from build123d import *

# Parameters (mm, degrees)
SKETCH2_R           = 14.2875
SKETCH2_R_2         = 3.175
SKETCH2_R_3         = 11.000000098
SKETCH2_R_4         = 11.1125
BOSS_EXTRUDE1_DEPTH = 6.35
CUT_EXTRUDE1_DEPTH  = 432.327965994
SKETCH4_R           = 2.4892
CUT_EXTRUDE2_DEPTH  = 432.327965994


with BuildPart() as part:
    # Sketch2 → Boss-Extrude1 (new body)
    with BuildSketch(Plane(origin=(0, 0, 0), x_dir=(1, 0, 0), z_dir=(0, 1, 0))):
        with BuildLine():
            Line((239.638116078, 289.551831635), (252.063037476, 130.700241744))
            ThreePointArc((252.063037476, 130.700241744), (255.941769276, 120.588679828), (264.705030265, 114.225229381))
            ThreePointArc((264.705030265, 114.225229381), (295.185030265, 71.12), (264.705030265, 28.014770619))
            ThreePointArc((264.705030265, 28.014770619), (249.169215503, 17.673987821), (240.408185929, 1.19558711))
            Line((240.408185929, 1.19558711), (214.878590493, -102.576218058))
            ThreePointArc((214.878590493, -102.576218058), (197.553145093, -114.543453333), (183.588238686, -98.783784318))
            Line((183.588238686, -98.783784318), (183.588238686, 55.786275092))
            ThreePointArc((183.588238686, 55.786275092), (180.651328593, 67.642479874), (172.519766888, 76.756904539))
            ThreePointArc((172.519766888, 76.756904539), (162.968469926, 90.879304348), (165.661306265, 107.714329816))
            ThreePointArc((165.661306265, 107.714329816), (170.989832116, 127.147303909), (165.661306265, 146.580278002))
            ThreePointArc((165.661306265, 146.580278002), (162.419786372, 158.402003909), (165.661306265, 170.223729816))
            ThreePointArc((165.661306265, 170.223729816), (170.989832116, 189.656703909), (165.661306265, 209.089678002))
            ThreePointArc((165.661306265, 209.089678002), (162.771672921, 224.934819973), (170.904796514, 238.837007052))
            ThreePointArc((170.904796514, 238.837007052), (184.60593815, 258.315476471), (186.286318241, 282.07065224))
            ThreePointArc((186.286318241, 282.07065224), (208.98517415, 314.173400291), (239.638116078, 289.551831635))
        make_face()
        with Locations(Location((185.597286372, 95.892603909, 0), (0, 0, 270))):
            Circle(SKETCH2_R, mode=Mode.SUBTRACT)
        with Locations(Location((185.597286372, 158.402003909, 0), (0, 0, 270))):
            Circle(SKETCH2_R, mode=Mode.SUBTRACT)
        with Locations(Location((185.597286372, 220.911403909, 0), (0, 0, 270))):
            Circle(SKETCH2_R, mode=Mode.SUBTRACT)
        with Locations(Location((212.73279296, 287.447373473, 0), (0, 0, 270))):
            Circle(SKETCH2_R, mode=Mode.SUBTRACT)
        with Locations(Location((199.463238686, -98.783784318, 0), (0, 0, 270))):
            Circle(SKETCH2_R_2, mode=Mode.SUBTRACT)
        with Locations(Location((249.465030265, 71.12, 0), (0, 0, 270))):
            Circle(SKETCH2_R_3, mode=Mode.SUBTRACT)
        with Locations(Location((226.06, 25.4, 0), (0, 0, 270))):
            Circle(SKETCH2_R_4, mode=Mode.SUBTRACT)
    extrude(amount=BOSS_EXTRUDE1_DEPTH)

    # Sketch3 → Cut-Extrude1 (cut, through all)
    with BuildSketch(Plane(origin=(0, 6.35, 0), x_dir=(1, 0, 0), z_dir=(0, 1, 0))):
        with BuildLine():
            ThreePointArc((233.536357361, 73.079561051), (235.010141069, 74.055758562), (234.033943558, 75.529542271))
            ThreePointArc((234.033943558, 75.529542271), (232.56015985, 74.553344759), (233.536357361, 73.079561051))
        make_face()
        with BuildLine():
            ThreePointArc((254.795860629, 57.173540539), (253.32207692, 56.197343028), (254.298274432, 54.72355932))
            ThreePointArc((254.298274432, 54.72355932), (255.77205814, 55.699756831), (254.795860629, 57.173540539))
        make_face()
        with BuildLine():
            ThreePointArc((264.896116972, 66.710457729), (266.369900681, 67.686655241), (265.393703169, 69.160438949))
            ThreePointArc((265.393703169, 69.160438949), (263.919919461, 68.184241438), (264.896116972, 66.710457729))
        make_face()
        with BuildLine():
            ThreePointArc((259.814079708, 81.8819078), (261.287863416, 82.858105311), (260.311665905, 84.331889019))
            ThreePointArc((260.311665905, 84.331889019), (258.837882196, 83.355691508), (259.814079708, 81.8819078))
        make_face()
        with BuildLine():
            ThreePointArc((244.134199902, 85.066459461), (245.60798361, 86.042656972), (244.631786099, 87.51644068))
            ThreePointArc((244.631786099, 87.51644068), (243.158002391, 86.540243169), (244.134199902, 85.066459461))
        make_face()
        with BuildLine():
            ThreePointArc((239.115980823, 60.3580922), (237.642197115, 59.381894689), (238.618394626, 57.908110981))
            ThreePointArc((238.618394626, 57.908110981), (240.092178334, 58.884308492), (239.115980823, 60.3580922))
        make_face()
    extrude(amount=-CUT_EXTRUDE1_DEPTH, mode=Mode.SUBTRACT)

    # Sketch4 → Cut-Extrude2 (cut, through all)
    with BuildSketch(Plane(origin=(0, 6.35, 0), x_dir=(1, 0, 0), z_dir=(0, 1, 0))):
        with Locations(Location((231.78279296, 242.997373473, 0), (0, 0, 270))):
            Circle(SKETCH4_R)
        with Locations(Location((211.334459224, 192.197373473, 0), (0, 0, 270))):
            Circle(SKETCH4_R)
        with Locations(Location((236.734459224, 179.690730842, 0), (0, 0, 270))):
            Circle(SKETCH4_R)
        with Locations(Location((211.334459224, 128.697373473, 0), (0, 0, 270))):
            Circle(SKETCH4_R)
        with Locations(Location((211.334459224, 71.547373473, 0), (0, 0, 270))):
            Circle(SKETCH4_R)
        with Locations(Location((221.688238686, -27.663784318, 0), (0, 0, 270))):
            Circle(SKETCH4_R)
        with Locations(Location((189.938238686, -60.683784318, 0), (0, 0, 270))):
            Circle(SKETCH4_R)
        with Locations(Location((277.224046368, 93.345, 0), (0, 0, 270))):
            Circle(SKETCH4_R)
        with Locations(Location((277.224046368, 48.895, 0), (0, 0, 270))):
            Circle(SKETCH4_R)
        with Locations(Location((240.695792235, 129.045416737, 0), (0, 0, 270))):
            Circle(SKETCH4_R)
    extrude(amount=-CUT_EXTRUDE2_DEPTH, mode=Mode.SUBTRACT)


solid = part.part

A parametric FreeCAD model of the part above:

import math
import FreeCAD as App
import Part
import Sketcher

V = App.Vector
Q = App.Units.Quantity

doc = App.newDocument("Part")
body = doc.addObject("PartDesign::Body", "Body")

# Sketch on XZ plane
sketch1 = body.newObject("Sketcher::SketchObject", "Sketch")
sketch1.AttachmentSupport = (doc.getObject("XZ_Plane"), [""])
sketch1.MapMode = "FlatFace"
sketch1.addGeometry([
    Part.LineSegment(V(252.1, -130.7, 0), V(239.6, -289.6, 0)),  # 0
    Part.ArcOfCircle(Part.Circle(V(212.7, -287.4, 0), V(0, 0, 1), 27), math.radians(169), math.radians(356)),  # 1
    Part.ArcOfCircle(Part.Circle(V(142.7, -273.2, 0), V(0, 0, 1), 44.4), math.radians(-11), math.radians(51)),  # 2
    Part.ArcOfCircle(Part.Circle(V(185.6, -220.9, 0), V(0, 0, 1), 23.2), math.radians(149), math.radians(231)),  # 3
    Part.ArcOfCircle(Part.Circle(V(132.9, -189.7, 0), V(0, 0, 1), 38.1), math.radians(-31), math.radians(31)),  # 4
    Part.ArcOfCircle(Part.Circle(V(185.6, -158.4, 0), V(0, 0, 1), 23.2), math.radians(149), math.radians(211)),  # 5
    Part.ArcOfCircle(Part.Circle(V(132.9, -127.1, 0), V(0, 0, 1), 38.1), math.radians(-31), math.radians(31)),  # 6
    Part.ArcOfCircle(Part.Circle(V(185.6, -95.9, 0), V(0, 0, 1), 23.2), math.radians(124), math.radians(211)),  # 7
    Part.ArcOfCircle(Part.Circle(V(158.2, -55.8, 0), V(0, 0, 1), 25.4), math.radians(-56), math.radians(0)),  # 8
    Part.LineSegment(V(183.6, -55.8, 0), V(183.6, 98.8, 0)),  # 9
    Part.ArcOfCircle(Part.Circle(V(199.5, 98.8, 0), V(0, 0, 1), 15.9), math.radians(14), math.radians(180)),  # 10
    Part.LineSegment(V(214.9, 102.6, 0), V(240.4, -1.2, 0)),  # 11
    Part.ArcOfCircle(Part.Circle(V(277.4, 7.9, 0), V(0, 0, 1), 38.1), math.radians(-166), math.radians(-109)),  # 12
    Part.ArcOfCircle(Part.Circle(V(249.5, -71.1, 0), V(0, 0, 1), 45.7), math.radians(-71), math.radians(71)),  # 13
    Part.ArcOfCircle(Part.Circle(V(271.1, -132.2, 0), V(0, 0, 1), 19), math.radians(109), math.radians(176)),  # 14
    Part.Circle(V(249.5, -71.1, 0), V(0, 0, 1), 11),  # 15
    Part.Circle(V(226.1, -25.4, 0), V(0, 0, 1), 11.1),  # 16
    Part.Circle(V(199.5, 98.8, 0), V(0, 0, 1), 3.2),  # 17
    Part.Circle(V(185.6, -95.9, 0), V(0, 0, 1), 14.3),  # 18
    Part.Circle(V(185.6, -158.4, 0), V(0, 0, 1), 14.3),  # 19
    Part.Circle(V(212.7, -287.4, 0), V(0, 0, 1), 14.3),  # 20
    Part.Circle(V(185.6, -220.9, 0), V(0, 0, 1), 14.3),  # 21
], False)
sketch1.addConstraint([
    Sketcher.Constraint("Tangent", 0, 2, 1, 2),
    Sketcher.Constraint("Tangent", 1, 1, 2, 1),
    Sketcher.Constraint("Tangent", 2, 2, 3, 2),
    Sketcher.Constraint("Tangent", 3, 1, 4, 1),
    Sketcher.Constraint("Tangent", 4, 2, 5, 2),
    Sketcher.Constraint("Tangent", 5, 1, 6, 1),
    Sketcher.Constraint("Tangent", 6, 2, 7, 2),
    Sketcher.Constraint("Tangent", 7, 1, 8, 1),
    Sketcher.Constraint("Tangent", 8, 2, 9, 1),
    Sketcher.Constraint("Tangent", 9, 2, 10, 2),
    Sketcher.Constraint("Tangent", 10, 1, 11, 1),
    Sketcher.Constraint("Tangent", 11, 2, 12, 1),
    Sketcher.Constraint("Tangent", 12, 2, 13, 2),
    Sketcher.Constraint("Tangent", 13, 1, 14, 1),
    Sketcher.Constraint("Tangent", 14, 2, 0, 1),
    Sketcher.Constraint("Vertical", 9),
    Sketcher.Constraint("Coincident", 15, 3, 13, 3),
    Sketcher.Constraint("Coincident", 17, 3, 10, 3),
    Sketcher.Constraint("Coincident", 18, 3, 7, 3),
    Sketcher.Constraint("Coincident", 19, 3, 5, 3),
    Sketcher.Constraint("Coincident", 20, 3, 1, 3),
    Sketcher.Constraint("Coincident", 21, 3, 3, 3),
    Sketcher.Constraint("Equal", 3, 5),
    Sketcher.Constraint("Equal", 4, 6),
    Sketcher.Constraint("Equal", 5, 7),
    Sketcher.Constraint("Equal", 6, 12),
    Sketcher.Constraint("Equal", 18, 19),
    Sketcher.Constraint("Equal", 19, 20),
    Sketcher.Constraint("Equal", 20, 21),
    Sketcher.Constraint("Vertical", 3, 3, 5, 3),
    Sketcher.Constraint("Vertical", 4, 3, 6, 3),
    Sketcher.Constraint("Vertical", 5, 3, 7, 3),
    Sketcher.Constraint("Vertical", 12, 2, 13, 1),
    Sketcher.Constraint("Radius", 8, Q("1 in")),
    Sketcher.Constraint("Radius", 4, Q("1.5 in")),
    Sketcher.Constraint("Radius", 13, Q("1.8 in")),
    Sketcher.Constraint("Diameter", 17, Q("0.25 in")),
    Sketcher.Constraint("Radius", 2, Q("1.75 in")),
    Sketcher.Constraint("Radius", 14, Q("0.75 in")),
    Sketcher.Constraint("Diameter", 16, Q("0.875 in")),
    Sketcher.Constraint("Diameter", 18, Q("1.125 in")),
    Sketcher.Constraint("DistanceY", 16, 3, -1, 1, Q("1 in")),
    Sketcher.Constraint("Radius", 1, Q("1.0625 in")),
    Sketcher.Constraint("Radius", 10, Q("0.625 in")),
    Sketcher.Constraint("DistanceY", 13, 3, -1, 1, Q("2.8 in")),
    Sketcher.Constraint("DistanceX", -1, 1, 16, 3, Q("8.9 in")),
    Sketcher.Constraint("Radius", 3, Q("0.9125 in")),
    Sketcher.Constraint("DistanceX", 13, 3, 12, 3, Q("1.1 in")),
    Sketcher.Constraint("Diameter", 15, 22.0),
    Sketcher.Constraint("DistanceY", 3, 3, 5, 3, Q("2.461 in")),
    Sketcher.Constraint("DistanceY", 9, 1, 9, 2, 154.570059),
    Sketcher.Constraint("DistanceX", 6, 3, 12, 3, 144.515198),
    Sketcher.Constraint("DistanceX", 2, 3, 1, 1, 43.5589),
    Sketcher.Constraint("DistanceY", 7, 3, 7, 1, 19.135699),
    Sketcher.Constraint("DistanceY", 14, 3, 14, 2, 1.4855),
    Sketcher.Constraint("Distance", 0, 159.33677),
    Sketcher.Constraint("DistanceX", -1, 1, 2, 3, 142.727419),
])
pad1 = body.newObject("PartDesign::Pad", "Pad")
pad1.Profile = sketch1
pad1.Length = Q("0.25 in")
pad1.Reversed = True

# Sketch on XZ plane
sketch2 = body.newObject("Sketcher::SketchObject", "Sketch001")
sketch2.AttachmentSupport = (doc.getObject("XZ_Plane"), [""])
sketch2.MapMode = "FlatFace"
sketch2.AttachmentOffset = App.Placement(V(0, 0, -0.25 * 25.4), App.Rotation())
sketch2.addGeometry([
    Part.ArcOfCircle(Part.Circle(V(233.8, -74.3, 0), V(0, 0, 1), 1.2), math.radians(-79), math.radians(101)),  # 0
    Part.ArcOfCircle(Part.Circle(V(233.8, -74.3, 0), V(0, 0, 1), 1.2), math.radians(101), math.radians(281)),  # 1
    Part.ArcOfCircle(Part.Circle(V(254.5, -55.9, 0), V(0, 0, 1), 1.2), math.radians(101), math.radians(281)),  # 2
    Part.ArcOfCircle(Part.Circle(V(254.5, -55.9, 0), V(0, 0, 1), 1.2), math.radians(-79), math.radians(101)),  # 3
    Part.Circle(V(265.1, -67.9, 0), V(0, 0, 1), 1.2),  # 4
    Part.ArcOfCircle(Part.Circle(V(260.1, -83.1, 0), V(0, 0, 1), 1.2), math.radians(-79), math.radians(101)),  # 5
    Part.ArcOfCircle(Part.Circle(V(260.1, -83.1, 0), V(0, 0, 1), 1.2), math.radians(101), math.radians(281)),  # 6
    Part.Circle(V(244.4, -86.3, 0), V(0, 0, 1), 1.2),  # 7
    Part.Circle(V(238.9, -59.1, 0), V(0, 0, 1), 1.2),  # 8
], False)
sketch2.addConstraint([
    Sketcher.Constraint("Tangent", 0, 1, 1, 2),
    Sketcher.Constraint("Coincident", 1, 1, 0, 2),
    Sketcher.Constraint("Tangent", 2, 1, 3, 2),
    Sketcher.Constraint("Coincident", 3, 1, 2, 2),
    Sketcher.Constraint("Tangent", 5, 1, 6, 2),
    Sketcher.Constraint("Coincident", 6, 1, 5, 2),
    Sketcher.Constraint("Equal", 1, 2),
    Sketcher.Constraint("Equal", 3, 4),
    Sketcher.Constraint("Equal", 4, 5),
    Sketcher.Constraint("Equal", 6, 7),
    Sketcher.Constraint("Equal", 7, 8),
    Sketcher.Constraint("Diameter", 4, 2.5),
    Sketcher.Constraint("DistanceY", 5, 3, -1, 1, 83.106898),
    Sketcher.Constraint("DistanceY", 8, 3, -1, 1, 59.133102),
    Sketcher.Constraint("DistanceY", 1, 3, 2, 3, 18.356002),
    Sketcher.Constraint("DistanceY", 4, 3, 2, 3, 11.986898),
    Sketcher.Constraint("DistanceY", 7, 3, 1, 3, 11.986898),
    Sketcher.Constraint("DistanceY", 1, 1, 2, 1, 18.356002),
    Sketcher.Constraint("DistanceX", -1, 1, 0, 3, 233.78515),
    Sketcher.Constraint("DistanceY", 0, 3, -1, 1, 74.304552),
    Sketcher.Constraint("DistanceX", -1, 1, 4, 3, 265.14491),
    Sketcher.Constraint("DistanceY", 1, 1, -1, 1, 73.079561),
    Sketcher.Constraint("DistanceX", -1, 1, 3, 1, 254.795861),
    Sketcher.Constraint("DistanceY", 3, 1, -1, 1, 57.173541),
    Sketcher.Constraint("DistanceY", 5, 1, -1, 1, 84.331889),
    Sketcher.Constraint("DistanceX", -1, 1, 6, 1, 259.81408),
    Sketcher.Constraint("DistanceX", 7, 3, 6, 3, 15.67988),
    Sketcher.Constraint("DistanceX", 8, 3, 2, 3, 15.67988),
    Sketcher.Constraint("DistanceY", 0, 1, 1, 3, 1.224991),
    Sketcher.Constraint("DistanceX", 0, 1, 7, 3, 10.349049),
])
pocket1 = body.newObject("PartDesign::Pocket", "Pocket")
pocket1.Profile = sketch2
pocket1.Type = "ThroughAll"
pocket1.Reversed = True

# Sketch on XZ plane
sketch3 = body.newObject("Sketcher::SketchObject", "Sketch002")
sketch3.AttachmentSupport = (doc.getObject("XZ_Plane"), [""])
sketch3.MapMode = "FlatFace"
sketch3.AttachmentOffset = App.Placement(V(0, 0, -0.25 * 25.4), App.Rotation())
sketch3.addGeometry([
    Part.Circle(V(231.8, -243, 0), V(0, 0, 1), 2.5),  # 0
    Part.Circle(V(211.3, -192.2, 0), V(0, 0, 1), 2.5),  # 1
    Part.Circle(V(236.7, -179.7, 0), V(0, 0, 1), 2.5),  # 2
    Part.Circle(V(211.3, -128.7, 0), V(0, 0, 1), 2.5),  # 3
    Part.Circle(V(211.3, -71.5, 0), V(0, 0, 1), 2.5),  # 4
    Part.Circle(V(221.7, 27.7, 0), V(0, 0, 1), 2.5),  # 5
    Part.Circle(V(189.9, 60.7, 0), V(0, 0, 1), 2.5),  # 6
    Part.Circle(V(277.2, -93.3, 0), V(0, 0, 1), 2.5),  # 7
    Part.Circle(V(277.2, -48.9, 0), V(0, 0, 1), 2.5),  # 8
    Part.Circle(V(240.7, -129, 0), V(0, 0, 1), 2.5),  # 9
], False)
sketch3.addConstraint([
    Sketcher.Constraint("Equal", 0, 1),
    Sketcher.Constraint("Equal", 1, 2),
    Sketcher.Constraint("Equal", 2, 3),
    Sketcher.Constraint("Equal", 3, 4),
    Sketcher.Constraint("Equal", 4, 5),
    Sketcher.Constraint("Equal", 5, 6),
    Sketcher.Constraint("Equal", 6, 7),
    Sketcher.Constraint("Equal", 7, 8),
    Sketcher.Constraint("Equal", 8, 9),
    Sketcher.Constraint("Vertical", 1, 3, 3, 3),
    Sketcher.Constraint("Vertical", 3, 3, 4, 3),
    Sketcher.Constraint("Vertical", 7, 3, 8, 3),
    Sketcher.Constraint("Diameter", 0, Q("0.196 in")),
    Sketcher.Constraint("DistanceY", 0, 3, 1, 3, Q("2 in")),
    Sketcher.Constraint("DistanceX", 1, 3, 2, 3, Q("1 in")),
    Sketcher.Constraint("DistanceY", 1, 3, 3, 3, Q("2.5 in")),
    Sketcher.Constraint("DistanceY", 5, 3, 6, 3, Q("1.3 in")),
    Sketcher.Constraint("DistanceY", 3, 3, 4, 3, Q("2.25 in")),
    Sketcher.Constraint("DistanceX", 6, 3, 5, 3, Q("1.25 in")),
    Sketcher.Constraint("DistanceY", 7, 3, 8, 3, Q("1.75 in")),
    Sketcher.Constraint("DistanceY", 7, 3, -1, 1, Q("3.675 in")),
    Sketcher.Constraint("DistanceX", -1, 1, 1, 3, 211.334459),
    Sketcher.Constraint("DistanceY", 2, 3, -1, 1, 179.690731),
    Sketcher.Constraint("DistanceX", -1, 1, 5, 3, 221.688239),
    Sketcher.Constraint("DistanceX", -1, 1, 0, 3, 231.782793),
    Sketcher.Constraint("DistanceY", 0, 3, -1, 1, 242.997373),
    Sketcher.Constraint("DistanceY", -1, 1, 5, 3, 27.663784),
    Sketcher.Constraint("DistanceX", -1, 1, 7, 3, 277.224046),
    Sketcher.Constraint("DistanceX", -1, 1, 9, 3, 240.695792),
    Sketcher.Constraint("DistanceY", 9, 3, -1, 1, 129.045417),
])
pocket2 = body.newObject("PartDesign::Pocket", "Pocket001")
pocket2.Profile = sketch3
pocket2.Type = "ThroughAll"
pocket2.Reversed = True

doc.recompute()
